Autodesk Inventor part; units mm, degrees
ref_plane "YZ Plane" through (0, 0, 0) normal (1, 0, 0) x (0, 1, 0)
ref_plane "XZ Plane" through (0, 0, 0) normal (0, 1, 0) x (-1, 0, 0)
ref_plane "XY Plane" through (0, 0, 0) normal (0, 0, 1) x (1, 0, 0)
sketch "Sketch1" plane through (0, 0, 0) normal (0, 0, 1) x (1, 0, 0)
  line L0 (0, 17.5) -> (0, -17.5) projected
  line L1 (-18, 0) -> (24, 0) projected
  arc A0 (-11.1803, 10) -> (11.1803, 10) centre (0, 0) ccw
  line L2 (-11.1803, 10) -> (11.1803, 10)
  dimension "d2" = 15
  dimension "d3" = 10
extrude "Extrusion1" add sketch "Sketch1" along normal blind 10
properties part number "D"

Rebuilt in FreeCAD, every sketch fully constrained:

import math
import FreeCAD as App
import Part
import Sketcher

V = App.Vector

doc = App.newDocument("Part")
body = doc.addObject("PartDesign::Body", "Body")

# Sketch on XY plane
sketch1 = doc.addObject("Sketcher::SketchObject", "Sketch")
body.addObject(sketch1)
sketch1.AttachmentSupport = (doc.XY_Plane, [""])
sketch1.MapMode = "FlatFace"
sketch1.addGeometry(Part.LineSegment(V(11.1803, 10, 0), V(-11.1803, 10, 0)), False)
sketch1.addGeometry(Part.ArcOfCircle(Part.Circle(V(0, 0, 0), V(0, 0, 1), 14.99997), math.radians(138.189584), math.radians(401.810416)), False)
sketch1.addConstraint(Sketcher.Constraint("Coincident", 0, 1, 1, 2))
sketch1.addConstraint(Sketcher.Constraint("Coincident", 1, 1, 0, 2))
sketch1.addConstraint(Sketcher.Constraint("Horizontal", 0))
sketch1.addConstraint(Sketcher.Constraint("Coincident", 1, 3, -1, 1))
sketch1.addConstraint(Sketcher.Constraint("Radius", 1, 15.0))
sketch1.addConstraint(Sketcher.Constraint("DistanceY", -1, 1, 0, 1, 10.0))
pad1 = doc.addObject("PartDesign::Pad", "Pad")
body.addObject(pad1)
pad1.Profile = sketch1
pad1.Length = 10

doc.recompute()
